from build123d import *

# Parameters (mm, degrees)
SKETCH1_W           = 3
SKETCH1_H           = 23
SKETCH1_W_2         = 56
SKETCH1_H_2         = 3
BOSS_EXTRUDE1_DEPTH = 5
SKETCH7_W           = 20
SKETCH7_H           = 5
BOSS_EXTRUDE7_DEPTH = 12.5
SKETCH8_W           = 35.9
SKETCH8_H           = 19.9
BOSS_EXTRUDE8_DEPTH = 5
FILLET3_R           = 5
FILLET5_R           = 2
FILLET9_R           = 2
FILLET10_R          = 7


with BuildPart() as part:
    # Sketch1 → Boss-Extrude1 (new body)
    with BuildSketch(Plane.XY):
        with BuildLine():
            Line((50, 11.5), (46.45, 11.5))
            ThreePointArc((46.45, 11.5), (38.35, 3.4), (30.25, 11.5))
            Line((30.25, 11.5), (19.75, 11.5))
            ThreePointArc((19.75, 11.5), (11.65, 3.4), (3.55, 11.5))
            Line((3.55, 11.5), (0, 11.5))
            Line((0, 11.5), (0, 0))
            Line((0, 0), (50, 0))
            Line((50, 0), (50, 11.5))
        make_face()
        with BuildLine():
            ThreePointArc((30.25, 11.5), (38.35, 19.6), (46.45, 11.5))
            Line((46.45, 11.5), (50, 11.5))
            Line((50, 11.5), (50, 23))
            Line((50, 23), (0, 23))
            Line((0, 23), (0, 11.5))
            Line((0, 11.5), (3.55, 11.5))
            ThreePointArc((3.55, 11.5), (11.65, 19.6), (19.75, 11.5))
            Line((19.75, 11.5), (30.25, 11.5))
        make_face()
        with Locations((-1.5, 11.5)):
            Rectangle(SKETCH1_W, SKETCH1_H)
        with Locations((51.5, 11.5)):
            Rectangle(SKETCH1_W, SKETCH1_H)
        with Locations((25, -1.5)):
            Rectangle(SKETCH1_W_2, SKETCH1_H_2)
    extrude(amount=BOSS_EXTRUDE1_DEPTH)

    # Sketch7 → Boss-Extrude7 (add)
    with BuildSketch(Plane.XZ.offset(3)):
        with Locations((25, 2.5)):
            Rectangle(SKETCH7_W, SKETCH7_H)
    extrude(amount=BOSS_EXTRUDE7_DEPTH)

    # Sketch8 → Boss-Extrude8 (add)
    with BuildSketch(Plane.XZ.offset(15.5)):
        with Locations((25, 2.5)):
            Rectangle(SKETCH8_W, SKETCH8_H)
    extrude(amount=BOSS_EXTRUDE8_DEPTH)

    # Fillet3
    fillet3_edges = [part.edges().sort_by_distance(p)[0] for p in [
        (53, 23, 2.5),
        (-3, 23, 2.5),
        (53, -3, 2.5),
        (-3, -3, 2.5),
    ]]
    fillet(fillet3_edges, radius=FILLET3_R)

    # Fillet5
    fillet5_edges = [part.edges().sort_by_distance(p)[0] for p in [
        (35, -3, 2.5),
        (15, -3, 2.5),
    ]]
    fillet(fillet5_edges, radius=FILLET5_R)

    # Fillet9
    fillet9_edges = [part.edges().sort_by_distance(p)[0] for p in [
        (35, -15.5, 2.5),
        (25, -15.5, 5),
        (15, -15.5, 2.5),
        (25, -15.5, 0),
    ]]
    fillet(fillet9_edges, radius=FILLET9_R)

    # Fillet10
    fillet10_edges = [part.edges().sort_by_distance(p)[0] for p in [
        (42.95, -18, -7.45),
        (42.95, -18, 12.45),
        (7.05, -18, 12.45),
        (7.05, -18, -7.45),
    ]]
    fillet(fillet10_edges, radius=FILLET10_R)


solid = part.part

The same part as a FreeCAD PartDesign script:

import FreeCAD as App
import Part
import Sketcher

V = App.Vector
Q = App.Units.Quantity


def edges_at(feature, points):
    """Names of the edges that pass closest to the given points."""
    edges = feature.Shape.Edges
    near = lambda p: min(range(len(edges)), key=lambda i: edges[i].distToShape(Part.Vertex(*p))[0])
    return sorted({f"Edge{near(p) + 1}" for p in points})


def add_polygon(sketch, points):
    """Adds a closed chain of lines whose ends are joined by coincident constraints."""
    first, n = sketch.GeometryCount, len(points)
    for a, b in zip(points, points[1:] + points[:1]):
        sketch.addGeometry(Part.LineSegment(App.Vector(*a, 0), App.Vector(*b, 0)), False)
    for i in range(n):
        sketch.addConstraint(Sketcher.Constraint("Coincident", first + i, 2, first + (i + 1) % n, 1))

doc = App.newDocument("Part")
body = doc.addObject("PartDesign::Body", "Body")

# Sketch on XY plane
sketch1 = doc.addObject("Sketcher::SketchObject", "Sketch")
body.addObject(sketch1)
sketch1.AttachmentSupport = (doc.XY_Plane, [""])
sketch1.MapMode = "FlatFace"
add_polygon(sketch1, [(-3, 23), (-3, -3), (53, -3), (53, 23)])  # lines 0-3
sketch1.addGeometry(Part.Circle(V(38.35, 11.5, 0), V(0, 0, 1), 8.1), False)  # 4
sketch1.addGeometry(Part.Circle(V(11.65, 11.5, 0), V(0, 0, 1), 8.1), False)  # 5
sketch1.addConstraint([
    Sketcher.Constraint("Vertical", 0),
    Sketcher.Constraint("Horizontal", 1),
    Sketcher.Constraint("Vertical", 2),
    Sketcher.Constraint("Horizontal", 3),
    Sketcher.Constraint("Equal", 4, 5),
    Sketcher.Constraint("Horizontal", 4, 3, 5, 3),
    Sketcher.Constraint("Diameter", 4, Q("16.2 mm")),
    Sketcher.Constraint("DistanceX", 1, 1, 1, 2, Q("56 mm")),
    Sketcher.Constraint("DistanceY", 0, 2, 0, 1, Q("26 mm")),
    Sketcher.Constraint("DistanceX", 0, 2, -1, 1, Q("3 mm")),
    Sketcher.Constraint("DistanceY", 0, 2, -1, 1, Q("3 mm")),
    Sketcher.Constraint("DistanceY", -1, 1, 4, 3, Q("11.5 mm")),
    Sketcher.Constraint("DistanceX", 5, 3, 4, 3, Q("26.7 mm")),
    Sketcher.Constraint("DistanceX", -1, 1, 4, 3, Q("38.35 mm")),
])
pad1 = doc.addObject("PartDesign::Pad", "Pad")
body.addObject(pad1)
pad1.Profile = sketch1
pad1.Length = 5

# Sketch on XZ plane
sketch2 = doc.addObject("Sketcher::SketchObject", "Sketch001")
body.addObject(sketch2)
sketch2.AttachmentSupport = (doc.XZ_Plane, [""])
sketch2.MapMode = "FlatFace"
sketch2.AttachmentOffset = App.Placement(V(0, 0, 3), App.Rotation())
add_polygon(sketch2, [(15, 5), (15, 0), (35, 0), (35, 5)])  # lines 0-3
sketch2.addConstraint([
    Sketcher.Constraint("Vertical", 0),
    Sketcher.Constraint("Horizontal", 1),
    Sketcher.Constraint("Vertical", 2),
    Sketcher.Constraint("Horizontal", 3),
    Sketcher.Constraint("PointOnObject", 0, 2, -1),
    Sketcher.Constraint("DistanceX", 1, 1, 1, 2, Q("20 mm")),
    Sketcher.Constraint("DistanceY", 0, 2, 0, 1, Q("5 mm")),
    Sketcher.Constraint("DistanceX", -1, 1, 0, 2, Q("15 mm")),
])
pad2 = doc.addObject("PartDesign::Pad", "Pad001")
body.addObject(pad2)
pad2.Profile = sketch2
pad2.Length = 12.5

# Sketch on XZ plane
sketch3 = doc.addObject("Sketcher::SketchObject", "Sketch002")
body.addObject(sketch3)
sketch3.AttachmentSupport = (doc.XZ_Plane, [""])
sketch3.MapMode = "FlatFace"
sketch3.AttachmentOffset = App.Placement(V(0, 0, 15.5), App.Rotation())
add_polygon(sketch3, [(7.05, 12.45), (7.05, -7.45), (42.95, -7.45), (42.95, 12.45)])  # lines 0-3
sketch3.addConstraint([
    Sketcher.Constraint("Vertical", 0),
    Sketcher.Constraint("Horizontal", 1),
    Sketcher.Constraint("Vertical", 2),
    Sketcher.Constraint("Horizontal", 3),
    Sketcher.Constraint("DistanceX", 1, 1, 1, 2, Q("35.9 mm")),
    Sketcher.Constraint("DistanceY", 0, 2, 0, 1, Q("19.9 mm")),
    Sketcher.Constraint("DistanceX", -1, 1, 0, 2, Q("7.05 mm")),
    Sketcher.Constraint("DistanceY", 0, 2, -1, 1, Q("7.45 mm")),
])
pad3 = doc.addObject("PartDesign::Pad", "Pad002")
body.addObject(pad3)
pad3.Profile = sketch3
pad3.Length = 5
doc.recompute()

fillet = doc.addObject("PartDesign::Fillet", "Fillet")
body.addObject(fillet)
fillet.Base = (pad3, edges_at(pad3, [
    (53, 23, 2.5),
    (-3, 23, 2.5),
    (53, -3, 2.5),
    (-3, -3, 2.5),
]))
fillet.Radius = 5
doc.recompute()

fillet2 = doc.addObject("PartDesign::Fillet", "Fillet001")
body.addObject(fillet2)
fillet2.Base = (fillet, edges_at(fillet, [(35, -3, 2.5), (15, -3, 2.5)]))
fillet2.Radius = 2
doc.recompute()

fillet3 = doc.addObject("PartDesign::Fillet", "Fillet002")
body.addObject(fillet3)
fillet3.Base = (fillet2, edges_at(fillet2, [
    (35, -15.5, 2.5),
    (25, -15.5, 5),
    (15, -15.5, 2.5),
    (25, -15.5, 0),
]))
fillet3.Radius = 2
doc.recompute()

fillet4 = doc.addObject("PartDesign::Fillet", "Fillet003")
body.addObject(fillet4)
fillet4.Base = (fillet3, edges_at(fillet3, [
    (42.95, -18, -7.45),
    (42.95, -18, 12.45),
    (7.05, -18, 12.45),
    (7.05, -18, -7.45),
]))
fillet4.Radius = 7

doc.recompute()
